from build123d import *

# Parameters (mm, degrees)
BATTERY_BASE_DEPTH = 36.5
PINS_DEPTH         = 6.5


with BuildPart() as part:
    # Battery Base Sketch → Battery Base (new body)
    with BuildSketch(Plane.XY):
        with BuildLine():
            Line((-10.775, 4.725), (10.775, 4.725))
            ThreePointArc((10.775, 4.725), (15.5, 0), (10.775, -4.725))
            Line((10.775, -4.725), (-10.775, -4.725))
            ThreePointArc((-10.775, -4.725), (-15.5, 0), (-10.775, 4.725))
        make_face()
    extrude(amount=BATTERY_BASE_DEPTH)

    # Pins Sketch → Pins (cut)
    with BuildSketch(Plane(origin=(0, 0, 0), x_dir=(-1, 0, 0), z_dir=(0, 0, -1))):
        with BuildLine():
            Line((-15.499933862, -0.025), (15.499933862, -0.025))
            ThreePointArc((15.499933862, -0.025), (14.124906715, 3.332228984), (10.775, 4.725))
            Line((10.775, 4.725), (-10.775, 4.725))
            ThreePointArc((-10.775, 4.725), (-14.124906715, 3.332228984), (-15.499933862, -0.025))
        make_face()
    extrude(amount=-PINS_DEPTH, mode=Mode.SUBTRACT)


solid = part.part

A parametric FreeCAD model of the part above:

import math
import FreeCAD as App
import Part
import Sketcher

V = App.Vector
Q = App.Units.Quantity

doc = App.newDocument("Part")
params = doc.addObject("Spreadsheet::Sheet", "Params")
for row, (alias, value) in enumerate([
    ("sketch1_width", "21.55 mm"),
    ("pad1_length", "36.5 mm"),
    ("sketch2_width", "21.55 mm"),
    ("pocket1_length", "6.5 mm"),
], start=1):
    params.set(f"A{row}", alias)
    params.set(f"B{row}", "=" + value)
    params.setAlias(f"B{row}", alias)

body = doc.addObject("PartDesign::Body", "Body")

# Sketch on XY plane
sketch1 = body.newObject("Sketcher::SketchObject", "Sketch")
sketch1.AttachmentSupport = (doc.getObject("XY_Plane"), [""])
sketch1.MapMode = "FlatFace"
sketch1.addGeometry(Part.LineSegment(V(10.8, 4.7, 0), V(-10.8, 4.7, 0)), False)
sketch1.addGeometry(Part.ArcOfCircle(Part.Circle(V(-10.8, 0, 0), V(0, 0, 1), 4.7), math.radians(90), math.radians(270)), False)
sketch1.addGeometry(Part.LineSegment(V(-10.8, -4.7, 0), V(10.8, -4.7, 0)), False)
sketch1.addGeometry(Part.ArcOfCircle(Part.Circle(V(10.8, 0, 0), V(0, 0, 1), 4.7), math.radians(-90), math.radians(90)), False)
sketch1.addConstraint(Sketcher.Constraint("Tangent", 0, 2, 1, 1))
sketch1.addConstraint(Sketcher.Constraint("Tangent", 1, 2, 2, 1))
sketch1.addConstraint(Sketcher.Constraint("Tangent", 2, 2, 3, 1))
sketch1.addConstraint(Sketcher.Constraint("Tangent", 3, 2, 0, 1))
sketch1.addConstraint(Sketcher.Constraint("Horizontal", 0))
sketch1.addConstraint(Sketcher.Constraint("Horizontal", 2))
sketch1.addConstraint(Sketcher.Constraint("Symmetric", 1, 3, 3, 3, -1, 1))
sketch1.addConstraint(Sketcher.Constraint("Radius", 1, Q("4.725 mm")))
sketch1.addConstraint(Sketcher.Constraint("DistanceX", 0, 2, 0, 1, Q("21.55 mm")))
sketch1.setExpression("Constraints[8]", "Params.sketch1_width")
pad1 = body.newObject("PartDesign::Pad", "Pad")
pad1.Profile = sketch1
pad1.setExpression("Length", "Params.pad1_length")

# Sketch on XY plane
sketch2 = body.newObject("Sketcher::SketchObject", "Sketch001")
sketch2.AttachmentSupport = (doc.getObject("XY_Plane"), [""])
sketch2.MapMode = "FlatFace"
sketch2.addGeometry(Part.LineSegment(V(15.5, 0, 0), V(-15.5, 0, 0)), False)
sketch2.addGeometry(Part.ArcOfCircle(Part.Circle(V(-10.8, 0, 0), V(0, 0, 1), 4.7), math.radians(90), math.radians(180)), False)
sketch2.addGeometry(Part.LineSegment(V(-10.8, 4.7, 0), V(10.8, 4.7, 0)), False)
sketch2.addGeometry(Part.ArcOfCircle(Part.Circle(V(10.8, 0, 0), V(0, 0, 1), 4.7), math.radians(0), math.radians(90)), False)
sketch2.addConstraint(Sketcher.Constraint("Coincident", 0, 2, 1, 2))
sketch2.addConstraint(Sketcher.Constraint("Tangent", 1, 1, 2, 1))
sketch2.addConstraint(Sketcher.Constraint("Tangent", 2, 2, 3, 2))
sketch2.addConstraint(Sketcher.Constraint("Coincident", 3, 1, 0, 1))
sketch2.addConstraint(Sketcher.Constraint("Horizontal", 0))
sketch2.addConstraint(Sketcher.Constraint("Horizontal", 2))
sketch2.addConstraint(Sketcher.Constraint("Equal", 1, 3))
sketch2.addConstraint(Sketcher.Constraint("Symmetric", 1, 3, 3, 3, -1, 1))
sketch2.addConstraint(Sketcher.Constraint("Radius", 1, Q("4.725 mm")))
sketch2.addConstraint(Sketcher.Constraint("DistanceX", 2, 1, 2, 2, Q("21.55 mm")))
sketch2.addConstraint(Sketcher.Constraint("DistanceY", 0, 2, 1, 1, Q("4.75 mm")))
sketch2.setExpression("Constraints[9]", "Params.sketch2_width")
pocket1 = body.newObject("PartDesign::Pocket", "Pocket")
pocket1.Profile = sketch2
pocket1.setExpression("Length", "Params.pocket1_length")
pocket1.Reversed = True

doc.recompute()
